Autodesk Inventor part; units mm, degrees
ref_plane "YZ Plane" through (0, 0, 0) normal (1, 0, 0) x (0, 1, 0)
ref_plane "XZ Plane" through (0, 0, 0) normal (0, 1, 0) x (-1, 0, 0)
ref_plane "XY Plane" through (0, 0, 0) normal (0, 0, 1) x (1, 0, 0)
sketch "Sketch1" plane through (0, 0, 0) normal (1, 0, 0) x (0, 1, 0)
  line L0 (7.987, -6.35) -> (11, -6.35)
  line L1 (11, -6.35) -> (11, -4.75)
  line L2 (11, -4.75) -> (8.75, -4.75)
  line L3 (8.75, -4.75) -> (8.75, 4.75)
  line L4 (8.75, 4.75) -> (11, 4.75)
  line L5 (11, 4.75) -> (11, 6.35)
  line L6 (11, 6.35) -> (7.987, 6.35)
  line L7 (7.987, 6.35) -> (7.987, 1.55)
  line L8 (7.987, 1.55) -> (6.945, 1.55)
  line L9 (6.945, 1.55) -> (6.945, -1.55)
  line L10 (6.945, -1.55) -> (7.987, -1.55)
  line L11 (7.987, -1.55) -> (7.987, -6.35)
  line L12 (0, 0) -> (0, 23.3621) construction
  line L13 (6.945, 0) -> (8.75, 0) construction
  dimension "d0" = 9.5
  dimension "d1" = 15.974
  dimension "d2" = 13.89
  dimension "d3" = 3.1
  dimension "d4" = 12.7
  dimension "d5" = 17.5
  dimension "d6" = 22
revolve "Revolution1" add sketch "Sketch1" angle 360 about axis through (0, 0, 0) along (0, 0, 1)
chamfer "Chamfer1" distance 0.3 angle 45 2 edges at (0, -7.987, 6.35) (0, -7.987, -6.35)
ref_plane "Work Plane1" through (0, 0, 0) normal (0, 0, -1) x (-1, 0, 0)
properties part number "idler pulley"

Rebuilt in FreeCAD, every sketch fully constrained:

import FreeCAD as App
import Part
import Sketcher


def edges_at(feature, points):
    """Names of the edges that pass closest to the given points."""
    edges = feature.Shape.Edges
    near = lambda p: min(range(len(edges)), key=lambda i: edges[i].distToShape(Part.Vertex(*p))[0])
    return sorted({f"Edge{near(p) + 1}" for p in points})


def add_polygon(sketch, points):
    """Adds a closed chain of lines whose ends are joined by coincident constraints."""
    first, n = sketch.GeometryCount, len(points)
    for a, b in zip(points, points[1:] + points[:1]):
        sketch.addGeometry(Part.LineSegment(App.Vector(*a, 0), App.Vector(*b, 0)), False)
    for i in range(n):
        sketch.addConstraint(Sketcher.Constraint("Coincident", first + i, 2, first + (i + 1) % n, 1))

doc = App.newDocument("Part")
params = doc.addObject("Spreadsheet::Sheet", "Params")
for row, (alias, value) in enumerate([
    ("sketch1_height", "9.5 mm"),
    ("sketch1_height2", "3.1 mm"),
    ("sketch1_width", "2.25 mm"),
    ("revolution_angle", "360 deg"),
    ("chamfer_size", "0.3 mm"),
], start=1):
    params.set(f"A{row}", alias)
    params.set(f"B{row}", "=" + value)
    params.setAlias(f"B{row}", alias)

body = doc.addObject("PartDesign::Body", "Body")

sketch1 = body.newObject("Sketcher::SketchObject", "Sketch")
sketch1.AttachmentSupport = (doc.getObject("YZ_Plane"), [""])
sketch1.MapMode = "FlatFace"
add_polygon(sketch1, [(8, -1.6), (8, -6.3), (11, -6.3), (11, -4.8), (8.8, -4.8), (8.8, 4.8), (11, 4.8), (11, 6.3), (8, 6.3), (8, 1.6), (6.9, 1.6), (6.9, -1.6)])
sketch1.addConstraint([
    Sketcher.Constraint("Vertical", 0),
    Sketcher.Constraint("Horizontal", 1),
    Sketcher.Constraint("Vertical", 2),
    Sketcher.Constraint("Horizontal", 3),
    Sketcher.Constraint("Vertical", 4),
    Sketcher.Constraint("Horizontal", 5),
    Sketcher.Constraint("Vertical", 6),
    Sketcher.Constraint("Horizontal", 7),
    Sketcher.Constraint("Vertical", 8),
    Sketcher.Constraint("Horizontal", 9),
    Sketcher.Constraint("Vertical", 10),
    Sketcher.Constraint("Horizontal", 11),
    Sketcher.Constraint("Symmetric", 2, 2, 5, 2, -1),
    Sketcher.Constraint("Symmetric", 0, 2, 7, 2, -1),
    Sketcher.Constraint("Equal", 0, 8),
    Sketcher.Constraint("DistanceY", 4, 1, 4, 2, 9.5),
    Sketcher.Constraint("DistanceY", 10, 2, 10, 1, 3.1),
    Sketcher.Constraint("DistanceY", 1, 2, 6, 2, 12.7),
    Sketcher.Constraint("DistanceX", -1, 1, 1, 2, 11.0),
    Sketcher.Constraint("DistanceX", 3, 2, 3, 1, 2.25),
    Sketcher.Constraint("DistanceX", 1, 1, 1, 2, 3.013),
    Sketcher.Constraint("DistanceX", 9, 2, 9, 1, 1.042),
])
sketch1.setExpression("Constraints[27]", "Params.sketch1_height")
sketch1.setExpression("Constraints[28]", "Params.sketch1_height2")
sketch1.setExpression("Constraints[31]", "Params.sketch1_width")
revolution = body.newObject("PartDesign::Revolution", "Revolution")
revolution.Profile = sketch1
revolution.ReferenceAxis = (sketch1, ["V_Axis"])
revolution.setExpression("Angle", "Params.revolution_angle")
doc.recompute()

chamfer = body.newObject("PartDesign::Chamfer", "Chamfer")
chamfer.Base = (revolution, edges_at(revolution, [(0, -7.987, 6.35), (0, -7.987, -6.35)]))
chamfer.setExpression("Size", "Params.chamfer_size")

doc.recompute()
